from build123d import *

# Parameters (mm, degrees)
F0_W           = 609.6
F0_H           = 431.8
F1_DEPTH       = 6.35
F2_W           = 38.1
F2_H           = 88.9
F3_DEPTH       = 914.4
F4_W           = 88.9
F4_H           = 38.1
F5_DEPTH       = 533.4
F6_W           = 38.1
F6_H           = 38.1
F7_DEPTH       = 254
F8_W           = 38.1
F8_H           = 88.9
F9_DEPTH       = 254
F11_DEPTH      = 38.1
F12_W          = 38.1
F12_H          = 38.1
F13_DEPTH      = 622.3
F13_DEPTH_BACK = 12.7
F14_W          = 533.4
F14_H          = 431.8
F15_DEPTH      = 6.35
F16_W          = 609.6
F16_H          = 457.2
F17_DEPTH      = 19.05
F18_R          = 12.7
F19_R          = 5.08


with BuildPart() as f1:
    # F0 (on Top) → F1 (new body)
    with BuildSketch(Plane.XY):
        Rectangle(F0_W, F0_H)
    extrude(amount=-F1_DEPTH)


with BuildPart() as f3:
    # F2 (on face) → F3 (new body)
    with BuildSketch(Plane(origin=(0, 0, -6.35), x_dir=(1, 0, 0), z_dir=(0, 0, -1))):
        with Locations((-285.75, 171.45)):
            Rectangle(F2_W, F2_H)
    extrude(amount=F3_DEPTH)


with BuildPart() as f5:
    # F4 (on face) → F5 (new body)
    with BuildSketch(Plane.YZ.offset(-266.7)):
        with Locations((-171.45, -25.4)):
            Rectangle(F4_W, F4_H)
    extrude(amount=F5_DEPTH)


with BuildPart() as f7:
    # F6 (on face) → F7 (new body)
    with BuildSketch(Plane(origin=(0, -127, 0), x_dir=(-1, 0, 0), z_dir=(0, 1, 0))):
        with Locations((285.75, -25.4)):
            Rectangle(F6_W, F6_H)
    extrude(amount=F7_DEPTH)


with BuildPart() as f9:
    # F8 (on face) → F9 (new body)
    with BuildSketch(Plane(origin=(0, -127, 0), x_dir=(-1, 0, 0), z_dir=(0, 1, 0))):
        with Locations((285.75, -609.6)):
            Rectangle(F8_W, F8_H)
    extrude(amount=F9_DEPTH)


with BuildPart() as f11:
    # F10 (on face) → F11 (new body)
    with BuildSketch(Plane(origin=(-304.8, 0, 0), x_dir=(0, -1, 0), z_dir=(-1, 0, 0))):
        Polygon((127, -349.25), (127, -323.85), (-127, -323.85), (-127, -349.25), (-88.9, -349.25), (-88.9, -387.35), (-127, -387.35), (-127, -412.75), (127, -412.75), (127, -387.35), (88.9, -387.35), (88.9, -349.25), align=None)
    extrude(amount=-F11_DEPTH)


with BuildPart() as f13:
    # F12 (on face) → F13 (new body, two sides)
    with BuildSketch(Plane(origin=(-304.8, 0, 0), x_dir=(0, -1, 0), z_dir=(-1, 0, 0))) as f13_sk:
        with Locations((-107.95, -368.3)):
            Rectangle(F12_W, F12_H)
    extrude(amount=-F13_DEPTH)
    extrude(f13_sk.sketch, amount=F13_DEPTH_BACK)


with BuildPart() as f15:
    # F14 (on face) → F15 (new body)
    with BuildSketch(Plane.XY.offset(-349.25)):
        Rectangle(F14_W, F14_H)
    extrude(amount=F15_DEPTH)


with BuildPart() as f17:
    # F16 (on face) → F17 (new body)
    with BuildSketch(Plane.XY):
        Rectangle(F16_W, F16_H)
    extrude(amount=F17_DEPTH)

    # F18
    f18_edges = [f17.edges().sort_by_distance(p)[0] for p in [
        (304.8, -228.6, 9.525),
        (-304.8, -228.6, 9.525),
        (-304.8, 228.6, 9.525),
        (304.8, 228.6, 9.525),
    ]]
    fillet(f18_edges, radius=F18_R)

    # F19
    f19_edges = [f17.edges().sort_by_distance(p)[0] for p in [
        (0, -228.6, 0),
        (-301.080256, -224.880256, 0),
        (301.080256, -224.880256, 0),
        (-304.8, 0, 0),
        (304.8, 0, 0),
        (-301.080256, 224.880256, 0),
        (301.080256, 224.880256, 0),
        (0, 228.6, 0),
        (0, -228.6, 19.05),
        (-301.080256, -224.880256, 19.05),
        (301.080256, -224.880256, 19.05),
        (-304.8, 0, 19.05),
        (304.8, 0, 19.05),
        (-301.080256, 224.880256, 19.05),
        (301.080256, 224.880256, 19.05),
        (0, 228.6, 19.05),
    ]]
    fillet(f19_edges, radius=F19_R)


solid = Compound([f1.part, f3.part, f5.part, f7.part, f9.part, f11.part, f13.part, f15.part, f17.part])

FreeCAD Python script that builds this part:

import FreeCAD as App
import Part
import Sketcher

V = App.Vector
Q = App.Units.Quantity


def edges_at(feature, points):
    """Names of the edges that pass closest to the given points."""
    edges = feature.Shape.Edges
    near = lambda p: min(range(len(edges)), key=lambda i: edges[i].distToShape(Part.Vertex(*p))[0])
    return sorted({f"Edge{near(p) + 1}" for p in points})


def add_polygon(sketch, points):
    """Adds a closed chain of lines whose ends are joined by coincident constraints."""
    first, n = sketch.GeometryCount, len(points)
    for a, b in zip(points, points[1:] + points[:1]):
        sketch.addGeometry(Part.LineSegment(App.Vector(*a, 0), App.Vector(*b, 0)), False)
    for i in range(n):
        sketch.addConstraint(Sketcher.Constraint("Coincident", first + i, 2, first + (i + 1) % n, 1))

doc = App.newDocument("Part")
body = doc.addObject("PartDesign::Body", "Body")

# Sketch on XY plane
sketch1 = body.newObject("Sketcher::SketchObject", "Sketch")
sketch1.AttachmentSupport = (doc.getObject("XY_Plane"), [""])
sketch1.MapMode = "FlatFace"
add_polygon(sketch1, [(-305, 216), (-305, -216), (305, -216), (305, 216)])  # lines 0-3
sketch1.addConstraint(Sketcher.Constraint("Vertical", 0))
sketch1.addConstraint(Sketcher.Constraint("Horizontal", 1))
sketch1.addConstraint(Sketcher.Constraint("Vertical", 2))
sketch1.addConstraint(Sketcher.Constraint("Horizontal", 3))
sketch1.addConstraint(Sketcher.Constraint("Symmetric", 0, 2, 2, 2, -1, 1))
sketch1.addConstraint(Sketcher.Constraint("DistanceX", 1, 1, 1, 2, Q("24 in")))
sketch1.addConstraint(Sketcher.Constraint("DistanceY", 0, 2, 0, 1, Q("17 in")))
pad1 = body.newObject("PartDesign::Pad", "Pad")
pad1.Profile = sketch1
pad1.Length = Q("0.25 in")
pad1.Reversed = True
body2 = doc.addObject("PartDesign::Body", "Body001")

# Sketch on XY plane
sketch2 = body2.newObject("Sketcher::SketchObject", "Sketch001")
sketch2.AttachmentSupport = (doc.getObject("XY_Plane001"), [""])
sketch2.MapMode = "FlatFace"
sketch2.AttachmentOffset = App.Placement(V(0, 0, -0.25 * 25.4), App.Rotation())
add_polygon(sketch2, [(-305, -216), (-305, -127), (-267, -127), (-267, -216)])  # lines 0-3
sketch2.addConstraint(Sketcher.Constraint("Vertical", 0))
sketch2.addConstraint(Sketcher.Constraint("Horizontal", 1))
sketch2.addConstraint(Sketcher.Constraint("Vertical", 2))
sketch2.addConstraint(Sketcher.Constraint("Horizontal", 3))
sketch2.addConstraint(Sketcher.Constraint("DistanceX", 1, 1, 1, 2, Q("1.5 in")))
sketch2.addConstraint(Sketcher.Constraint("DistanceY", 0, 1, 0, 2, Q("3.5 in")))
sketch2.addConstraint(Sketcher.Constraint("DistanceX", 0, 2, -1, 1, Q("12 in")))
sketch2.addConstraint(Sketcher.Constraint("DistanceY", 0, 2, -1, 1, Q("5 in")))
pad2 = body2.newObject("PartDesign::Pad", "Pad001")
pad2.Profile = sketch2
pad2.Length = Q("36 in")
pad2.Reversed = True
body3 = doc.addObject("PartDesign::Body", "Body002")

# Sketch on YZ plane
sketch3 = body3.newObject("Sketcher::SketchObject", "Sketch002")
sketch3.AttachmentSupport = (doc.getObject("YZ_Plane002"), [""])
sketch3.MapMode = "FlatFace"
sketch3.AttachmentOffset = App.Placement(V(0, 0, -10.5 * 25.4), App.Rotation())
add_polygon(sketch3, [(-216, -6), (-216, -44), (-127, -44), (-127, -6)])  # lines 0-3
sketch3.addConstraint(Sketcher.Constraint("Vertical", 0))
sketch3.addConstraint(Sketcher.Constraint("Horizontal", 1))
sketch3.addConstraint(Sketcher.Constraint("Vertical", 2))
sketch3.addConstraint(Sketcher.Constraint("Horizontal", 3))
sketch3.addConstraint(Sketcher.Constraint("DistanceX", 1, 1, 1, 2, Q("3.5 in")))
sketch3.addConstraint(Sketcher.Constraint("DistanceY", 0, 2, 0, 1, Q("1.5 in")))
sketch3.addConstraint(Sketcher.Constraint("DistanceX", 1, 2, -1, 1, Q("5 in")))
sketch3.addConstraint(Sketcher.Constraint("DistanceY", 0, 2, -1, 1, Q("1.75 in")))
pad3 = body3.newObject("PartDesign::Pad", "Pad002")
pad3.Profile = sketch3
pad3.Length = Q("21 in")
body4 = doc.addObject("PartDesign::Body", "Body003")

# Sketch on XZ plane
sketch4 = body4.newObject("Sketcher::SketchObject", "Sketch003")
sketch4.AttachmentSupport = (doc.getObject("XZ_Plane003"), [""])
sketch4.MapMode = "FlatFace"
sketch4.AttachmentOffset = App.Placement(V(0, 0, 5 * 25.4), App.Rotation())
add_polygon(sketch4, [(-267, -6), (-267, -44), (-305, -44), (-305, -6)])  # lines 0-3
sketch4.addConstraint(Sketcher.Constraint("Vertical", 0))
sketch4.addConstraint(Sketcher.Constraint("Horizontal", 1))
sketch4.addConstraint(Sketcher.Constraint("Vertical", 2))
sketch4.addConstraint(Sketcher.Constraint("Horizontal", 3))
sketch4.addConstraint(Sketcher.Constraint("Equal", 3, 0))
sketch4.addConstraint(Sketcher.Constraint("DistanceX", 1, 2, 1, 1, Q("1.5 in")))
sketch4.addConstraint(Sketcher.Constraint("DistanceX", 1, 2, -1, 1, Q("12 in")))
sketch4.addConstraint(Sketcher.Constraint("DistanceY", 0, 2, -1, 1, Q("1.75 in")))
pad4 = body4.newObject("PartDesign::Pad", "Pad003")
pad4.Profile = sketch4
pad4.Length = Q("10 in")
pad4.Reversed = True
body5 = doc.addObject("PartDesign::Body", "Body004")

# Sketch on XZ plane
sketch5 = body5.newObject("Sketcher::SketchObject", "Sketch004")
sketch5.AttachmentSupport = (doc.getObject("XZ_Plane004"), [""])
sketch5.MapMode = "FlatFace"
sketch5.AttachmentOffset = App.Placement(V(0, 0, 5 * 25.4), App.Rotation())
add_polygon(sketch5, [(-267, -565), (-267, -654), (-305, -654), (-305, -565)])  # lines 0-3
sketch5.addConstraint(Sketcher.Constraint("Vertical", 0))
sketch5.addConstraint(Sketcher.Constraint("Horizontal", 1))
sketch5.addConstraint(Sketcher.Constraint("Vertical", 2))
sketch5.addConstraint(Sketcher.Constraint("Horizontal", 3))
sketch5.addConstraint(Sketcher.Constraint("DistanceX", 1, 2, 1, 1, Q("1.5 in")))
sketch5.addConstraint(Sketcher.Constraint("DistanceY", 0, 2, 0, 1, Q("3.5 in")))
sketch5.addConstraint(Sketcher.Constraint("DistanceX", 1, 2, -1, 1, Q("12 in")))
sketch5.addConstraint(Sketcher.Constraint("DistanceY", 0, 2, -1, 1, Q("25.75 in")))
pad5 = body5.newObject("PartDesign::Pad", "Pad004")
pad5.Profile = sketch5
pad5.Length = Q("10 in")
pad5.Reversed = True
body6 = doc.addObject("PartDesign::Body", "Body005")

# Sketch on YZ plane
sketch6 = body6.newObject("Sketcher::SketchObject", "Sketch005")
sketch6.AttachmentSupport = (doc.getObject("YZ_Plane005"), [""])
sketch6.MapMode = "FlatFace"
sketch6.AttachmentOffset = App.Placement(V(0, 0, -12 * 25.4), App.Rotation())
add_polygon(sketch6, [(-127, -349), (-127, -324), (127, -324), (127, -349), (89, -349), (89, -387), (127, -387), (127, -413), (-127, -413), (-127, -387), (-89, -387), (-89, -349)])  # lines 0-11
sketch6.addConstraint(Sketcher.Constraint("Vertical", 0))
sketch6.addConstraint(Sketcher.Constraint("Horizontal", 1))
sketch6.addConstraint(Sketcher.Constraint("Vertical", 2))
sketch6.addConstraint(Sketcher.Constraint("Horizontal", 3))
sketch6.addConstraint(Sketcher.Constraint("Vertical", 4))
sketch6.addConstraint(Sketcher.Constraint("Horizontal", 5))
sketch6.addConstraint(Sketcher.Constraint("Vertical", 6))
sketch6.addConstraint(Sketcher.Constraint("Horizontal", 7))
sketch6.addConstraint(Sketcher.Constraint("Vertical", 8))
sketch6.addConstraint(Sketcher.Constraint("Horizontal", 9))
sketch6.addConstraint(Sketcher.Constraint("Vertical", 10))
sketch6.addConstraint(Sketcher.Constraint("Horizontal", 11))
sketch6.addConstraint(Sketcher.Constraint("Symmetric", 5, 2, 8, 2, -2))
sketch6.addConstraint(Sketcher.Constraint("Symmetric", 3, 2, 10, 2, -2))
sketch6.addConstraint(Sketcher.Constraint("Vertical", 2, 2, 5, 2))
sketch6.addConstraint(Sketcher.Constraint("Vertical", 0, 2, 7, 2))
sketch6.addConstraint(Sketcher.Constraint("Equal", 11, 4))
sketch6.addConstraint(Sketcher.Constraint("Equal", 2, 6))
sketch6.addConstraint(Sketcher.Constraint("DistanceX", 1, 1, 1, 2, Q("10 in")))
sketch6.addConstraint(Sketcher.Constraint("DistanceY", 0, 1, 0, 2, Q("1 in")))
sketch6.addConstraint(Sketcher.Constraint("DistanceX", 3, 2, 3, 1, Q("1.5 in")))
sketch6.addConstraint(Sketcher.Constraint("DistanceY", 0, 2, -1, 1, Q("12.75 in")))
pad6 = body6.newObject("PartDesign::Pad", "Pad005")
pad6.Profile = sketch6
pad6.Length = Q("1.5 in")
body7 = doc.addObject("PartDesign::Body", "Body006")

# Sketch on YZ plane
sketch7 = body7.newObject("Sketcher::SketchObject", "Sketch006")
sketch7.AttachmentSupport = (doc.getObject("YZ_Plane006"), [""])
sketch7.MapMode = "FlatFace"
sketch7.AttachmentOffset = App.Placement(V(0, 0, -12 * 25.4), App.Rotation())
add_polygon(sketch7, [(127, -349), (127, -387), (89, -387), (89, -349)])  # lines 0-3
sketch7.addConstraint(Sketcher.Constraint("Vertical", 0))
sketch7.addConstraint(Sketcher.Constraint("Horizontal", 1))
sketch7.addConstraint(Sketcher.Constraint("Vertical", 2))
sketch7.addConstraint(Sketcher.Constraint("Horizontal", 3))
sketch7.addConstraint(Sketcher.Constraint("Equal", 3, 0))
sketch7.addConstraint(Sketcher.Constraint("DistanceX", 1, 2, 1, 1, Q("1.5 in")))
sketch7.addConstraint(Sketcher.Constraint("DistanceX", -1, 1, 0, 2, Q("5 in")))
sketch7.addConstraint(Sketcher.Constraint("DistanceY", 0, 2, -1, 1, Q("15.25 in")))
pad7 = body7.newObject("PartDesign::Pad", "Pad006")
pad7.Profile = sketch7
pad7.Type = "TwoLengths"
pad7.Length = Q("24.5 in")
pad7.Length2 = Q("0.5 in")
body8 = doc.addObject("PartDesign::Body", "Body007")

# Sketch on XY plane
sketch8 = body8.newObject("Sketcher::SketchObject", "Sketch007")
sketch8.AttachmentSupport = (doc.getObject("XY_Plane007"), [""])
sketch8.MapMode = "FlatFace"
sketch8.AttachmentOffset = App.Placement(V(0, 0, -13.75 * 25.4), App.Rotation())
add_polygon(sketch8, [(-267, 216), (-267, -216), (267, -216), (267, 216)])  # lines 0-3
sketch8.addConstraint(Sketcher.Constraint("Vertical", 0))
sketch8.addConstraint(Sketcher.Constraint("Horizontal", 1))
sketch8.addConstraint(Sketcher.Constraint("Vertical", 2))
sketch8.addConstraint(Sketcher.Constraint("Horizontal", 3))
sketch8.addConstraint(Sketcher.Constraint("Symmetric", 0, 2, 2, 2, -1, 1))
sketch8.addConstraint(Sketcher.Constraint("DistanceX", 1, 1, 1, 2, Q("21 in")))
sketch8.addConstraint(Sketcher.Constraint("DistanceY", 0, 2, 0, 1, Q("17 in")))
pad8 = body8.newObject("PartDesign::Pad", "Pad007")
pad8.Profile = sketch8
pad8.Length = Q("0.25 in")
body9 = doc.addObject("PartDesign::Body", "Body008")

# Sketch on XY plane
sketch9 = body9.newObject("Sketcher::SketchObject", "Sketch008")
sketch9.AttachmentSupport = (doc.getObject("XY_Plane008"), [""])
sketch9.MapMode = "FlatFace"
add_polygon(sketch9, [(-305, 229), (-305, -229), (305, -229), (305, 229)])  # lines 0-3
sketch9.addConstraint(Sketcher.Constraint("Vertical", 0))
sketch9.addConstraint(Sketcher.Constraint("Horizontal", 1))
sketch9.addConstraint(Sketcher.Constraint("Vertical", 2))
sketch9.addConstraint(Sketcher.Constraint("Horizontal", 3))
sketch9.addConstraint(Sketcher.Constraint("Symmetric", 0, 2, 2, 2, -1, 1))
sketch9.addConstraint(Sketcher.Constraint("DistanceX", 1, 1, 1, 2, Q("24 in")))
sketch9.addConstraint(Sketcher.Constraint("DistanceY", 0, 2, 0, 1, Q("18 in")))
pad9 = body9.newObject("PartDesign::Pad", "Pad008")
pad9.Profile = sketch9
pad9.Length = Q("0.75 in")
doc.recompute()

fillet = body9.newObject("PartDesign::Fillet", "Fillet")
fillet.Base = (pad9, edges_at(pad9, [
    (304.8, -228.6, 9.525),
    (-304.8, -228.6, 9.525),
    (-304.8, 228.6, 9.525),
    (304.8, 228.6, 9.525),
]))
fillet.Radius = Q("0.5 in")
doc.recompute()

fillet2 = body9.newObject("PartDesign::Fillet", "Fillet001")
fillet2.Base = (fillet, edges_at(fillet, [
    (0, -228.6, 0),
    (-301.08, -224.88, 0),
    (301.08, -224.88, 0),
    (-304.8, 0, 0),
    (304.8, 0, 0),
    (-301.08, 224.88, 0),
    (301.08, 224.88, 0),
    (0, 228.6, 0),
    (0, -228.6, 19.05),
    (-301.08, -224.88, 19.05),
    (301.08, -224.88, 19.05),
    (-304.8, 0, 19.05),
    (304.8, 0, 19.05),
    (-301.08, 224.88, 19.05),
    (301.08, 224.88, 19.05),
    (0, 228.6, 19.05),
]))
fillet2.Radius = Q("0.2 in")

doc.recompute()
